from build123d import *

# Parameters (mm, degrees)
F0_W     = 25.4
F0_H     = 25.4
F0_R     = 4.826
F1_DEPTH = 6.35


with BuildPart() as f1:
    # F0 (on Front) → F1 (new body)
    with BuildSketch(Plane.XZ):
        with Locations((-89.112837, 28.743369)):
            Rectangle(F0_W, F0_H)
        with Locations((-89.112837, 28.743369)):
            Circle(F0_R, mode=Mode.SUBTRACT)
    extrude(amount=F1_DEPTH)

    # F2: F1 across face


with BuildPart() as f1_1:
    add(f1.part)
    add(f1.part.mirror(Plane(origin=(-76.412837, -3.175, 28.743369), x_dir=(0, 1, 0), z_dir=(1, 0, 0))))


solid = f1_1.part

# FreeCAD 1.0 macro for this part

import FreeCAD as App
import Part
import Sketcher
from FreeCAD import Vector
Q = App.Units.Quantity

doc = App.newDocument("Part")
body = doc.addObject("PartDesign::Body", "Body")

sketch1 = doc.addObject("Sketcher::SketchObject", "Sketch")
body.addObject(sketch1)
sketch1.AttachmentSupport = (doc.XZ_Plane, [""])
sketch1.MapMode = "FlatFace"
sketch1.addGeometry(Part.LineSegment(Vector(-101.812837, 41.443369, 0), Vector(-101.812837, 16.043369, 0)), False)
sketch1.addGeometry(Part.LineSegment(Vector(-101.812837, 16.043369, 0), Vector(-76.412837, 16.043369, 0)), False)
sketch1.addGeometry(Part.LineSegment(Vector(-76.412837, 16.043369, 0), Vector(-76.412837, 41.443369, 0)), False)
sketch1.addGeometry(Part.LineSegment(Vector(-76.412837, 41.443369, 0), Vector(-101.812837, 41.443369, 0)), False)
sketch1.addGeometry(Part.Circle(Vector(-89.112837, 28.743369, 0), Vector(0, 0, 1), 4.826), False)
sketch1.addConstraint(Sketcher.Constraint("Coincident", 0, 2, 1, 1))
sketch1.addConstraint(Sketcher.Constraint("Coincident", 1, 2, 2, 1))
sketch1.addConstraint(Sketcher.Constraint("Coincident", 2, 2, 3, 1))
sketch1.addConstraint(Sketcher.Constraint("Coincident", 3, 2, 0, 1))
sketch1.addConstraint(Sketcher.Constraint("Vertical", 0))
sketch1.addConstraint(Sketcher.Constraint("Horizontal", 1))
sketch1.addConstraint(Sketcher.Constraint("Vertical", 2))
sketch1.addConstraint(Sketcher.Constraint("Horizontal", 3))
sketch1.addConstraint(Sketcher.Constraint("Equal", 3, 0))
sketch1.addConstraint(Sketcher.Constraint("Diameter", 4, Q("0.38 in")))
sketch1.addConstraint(Sketcher.Constraint("DistanceX", 1, 1, 1, 2, Q("1 in")))
sketch1.addConstraint(Sketcher.Constraint("DistanceX", 0, 2, 4, 3, Q("0.5 in")))
sketch1.addConstraint(Sketcher.Constraint("DistanceY", 0, 2, 4, 3, Q("0.5 in")))
sketch1.addConstraint(Sketcher.Constraint("DistanceY", -1, 1, 4, 3, Q("28.743369 mm")))
sketch1.addConstraint(Sketcher.Constraint("DistanceX", 4, 3, -1, 1, Q("89.112837 mm")))
pad1 = doc.addObject("PartDesign::Pad", "Pad")
body.addObject(pad1)
pad1.Profile = sketch1
pad1.Length = Q("0.25 in")
body2 = doc.addObject("PartDesign::Body", "Body001")
doc.recompute()

body2.BaseFeature = body
doc.recompute()

mirroring = doc.addObject("Part::Mirroring", "Mirroring")
mirroring.Source = body
mirroring.Base = Vector(-76.412837, -3.175, 28.743369)
mirroring.Normal = Vector(1, 0, 0)
body3 = doc.addObject("PartDesign::Body", "Body002")
body3.BaseFeature = mirroring
boolean = doc.addObject("PartDesign::Boolean", "Boolean")
body2.addObject(boolean)
boolean.Type = "Fuse"
boolean.addObjects([body3])
doc.recompute()
mirroring.Visibility = False

doc.recompute()
